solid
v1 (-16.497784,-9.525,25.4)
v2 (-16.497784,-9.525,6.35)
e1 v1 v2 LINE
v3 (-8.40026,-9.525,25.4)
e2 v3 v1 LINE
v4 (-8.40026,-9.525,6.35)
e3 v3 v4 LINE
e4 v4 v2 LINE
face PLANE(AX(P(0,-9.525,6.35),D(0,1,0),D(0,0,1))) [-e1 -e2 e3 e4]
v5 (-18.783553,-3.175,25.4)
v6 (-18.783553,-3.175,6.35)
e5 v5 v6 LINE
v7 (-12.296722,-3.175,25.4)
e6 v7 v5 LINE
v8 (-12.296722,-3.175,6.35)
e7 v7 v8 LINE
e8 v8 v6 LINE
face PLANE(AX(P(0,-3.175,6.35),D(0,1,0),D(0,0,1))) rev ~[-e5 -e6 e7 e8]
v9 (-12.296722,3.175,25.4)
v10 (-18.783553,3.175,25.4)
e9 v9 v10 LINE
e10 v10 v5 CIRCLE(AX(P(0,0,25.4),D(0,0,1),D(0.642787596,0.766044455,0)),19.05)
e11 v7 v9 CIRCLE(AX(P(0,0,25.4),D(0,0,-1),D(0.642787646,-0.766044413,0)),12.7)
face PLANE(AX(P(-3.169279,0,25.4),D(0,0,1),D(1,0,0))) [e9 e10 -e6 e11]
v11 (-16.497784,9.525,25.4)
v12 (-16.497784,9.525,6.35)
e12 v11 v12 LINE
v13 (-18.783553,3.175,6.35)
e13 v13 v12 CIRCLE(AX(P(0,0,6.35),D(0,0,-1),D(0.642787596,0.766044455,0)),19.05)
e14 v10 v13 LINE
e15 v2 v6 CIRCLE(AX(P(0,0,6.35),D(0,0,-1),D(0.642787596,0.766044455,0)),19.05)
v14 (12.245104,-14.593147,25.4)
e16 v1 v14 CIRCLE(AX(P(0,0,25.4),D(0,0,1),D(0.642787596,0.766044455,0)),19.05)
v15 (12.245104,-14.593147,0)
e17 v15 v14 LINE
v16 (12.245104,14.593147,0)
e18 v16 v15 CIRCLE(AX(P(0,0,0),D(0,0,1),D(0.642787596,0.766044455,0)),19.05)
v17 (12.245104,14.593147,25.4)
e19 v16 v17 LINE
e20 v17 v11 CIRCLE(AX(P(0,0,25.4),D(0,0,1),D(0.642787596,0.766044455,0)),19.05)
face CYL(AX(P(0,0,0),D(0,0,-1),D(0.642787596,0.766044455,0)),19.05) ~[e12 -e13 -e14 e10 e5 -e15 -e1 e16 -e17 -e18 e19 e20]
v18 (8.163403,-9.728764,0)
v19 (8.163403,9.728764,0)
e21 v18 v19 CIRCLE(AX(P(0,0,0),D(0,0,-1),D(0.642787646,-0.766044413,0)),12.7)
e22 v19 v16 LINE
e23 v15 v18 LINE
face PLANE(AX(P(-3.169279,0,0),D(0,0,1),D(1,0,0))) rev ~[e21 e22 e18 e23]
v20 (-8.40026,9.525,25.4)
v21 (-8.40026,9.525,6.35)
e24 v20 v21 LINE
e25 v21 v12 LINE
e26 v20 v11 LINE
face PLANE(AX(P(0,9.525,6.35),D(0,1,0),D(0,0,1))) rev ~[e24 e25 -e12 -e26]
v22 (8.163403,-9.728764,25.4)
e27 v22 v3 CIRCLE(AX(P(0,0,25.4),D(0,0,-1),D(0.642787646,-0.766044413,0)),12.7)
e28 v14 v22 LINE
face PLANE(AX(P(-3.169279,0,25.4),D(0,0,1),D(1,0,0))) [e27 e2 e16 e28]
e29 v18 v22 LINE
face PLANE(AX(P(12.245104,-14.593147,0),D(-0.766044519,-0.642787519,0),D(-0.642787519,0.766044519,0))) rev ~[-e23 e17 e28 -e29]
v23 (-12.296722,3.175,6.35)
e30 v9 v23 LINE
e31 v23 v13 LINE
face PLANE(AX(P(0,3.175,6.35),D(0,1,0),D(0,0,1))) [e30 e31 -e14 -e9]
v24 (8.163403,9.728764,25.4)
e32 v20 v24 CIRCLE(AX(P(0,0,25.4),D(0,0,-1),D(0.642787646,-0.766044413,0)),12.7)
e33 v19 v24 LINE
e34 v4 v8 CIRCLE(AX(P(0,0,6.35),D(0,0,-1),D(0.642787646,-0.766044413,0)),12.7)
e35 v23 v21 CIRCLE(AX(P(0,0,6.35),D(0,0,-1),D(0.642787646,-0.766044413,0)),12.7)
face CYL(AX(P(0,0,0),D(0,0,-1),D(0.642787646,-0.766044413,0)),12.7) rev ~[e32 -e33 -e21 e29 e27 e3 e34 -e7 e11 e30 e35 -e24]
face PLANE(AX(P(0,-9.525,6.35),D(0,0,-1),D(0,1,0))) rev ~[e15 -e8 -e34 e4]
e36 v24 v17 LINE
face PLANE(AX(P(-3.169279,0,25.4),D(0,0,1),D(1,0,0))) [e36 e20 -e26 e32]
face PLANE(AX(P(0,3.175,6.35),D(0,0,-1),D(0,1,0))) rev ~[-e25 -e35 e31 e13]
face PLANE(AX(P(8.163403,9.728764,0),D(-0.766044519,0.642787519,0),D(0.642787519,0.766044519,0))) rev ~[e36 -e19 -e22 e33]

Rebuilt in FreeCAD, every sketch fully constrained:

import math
import FreeCAD as App
import Part
import Sketcher
from FreeCAD import Vector
Q = App.Units.Quantity


def add_polygon(sketch, points):
    """Adds a closed chain of lines whose ends are joined by coincident constraints."""
    first, n = sketch.GeometryCount, len(points)
    for a, b in zip(points, points[1:] + points[:1]):
        sketch.addGeometry(Part.LineSegment(App.Vector(*a, 0), App.Vector(*b, 0)), False)
    for i in range(n):
        sketch.addConstraint(Sketcher.Constraint("Coincident", first + i, 2, first + (i + 1) % n, 1))

doc = App.newDocument("Part")
body = doc.addObject("PartDesign::Body", "Body")

sketch1 = body.newObject("Sketcher::SketchObject", "Sketch")
sketch1.AttachmentSupport = (doc.getObject("XY_Plane"), [""])
sketch1.MapMode = "FlatFace"
sketch1.addGeometry(Part.LineSegment(Vector(8, 10, 0), Vector(12, 15, 0)), False)
sketch1.addGeometry(Part.ArcOfCircle(Part.Circle(Vector(0, 0, 0), Vector(0, 0, 1), 19), math.radians(50), math.radians(310)), False)
sketch1.addGeometry(Part.LineSegment(Vector(12, -15, 0), Vector(8, -10, 0)), False)
sketch1.addGeometry(Part.ArcOfCircle(Part.Circle(Vector(0, 0, 0), Vector(0, 0, 1), 13), math.radians(50), math.radians(310)), False)
sketch1.addConstraint(Sketcher.Constraint("Coincident", 0, 2, 1, 1))
sketch1.addConstraint(Sketcher.Constraint("Coincident", 1, 2, 2, 1))
sketch1.addConstraint(Sketcher.Constraint("Coincident", 2, 2, 3, 2))
sketch1.addConstraint(Sketcher.Constraint("Coincident", 3, 1, 0, 1))
sketch1.addConstraint(Sketcher.Constraint("Coincident", 1, 3, -1, 1))
sketch1.addConstraint(Sketcher.Constraint("Coincident", 3, 3, -1, 1))
sketch1.addConstraint(Sketcher.Constraint("Vertical", 0, 2, 1, 2))
sketch1.addConstraint(Sketcher.Constraint("Vertical", 2, 2, 3, 1))
sketch1.addConstraint(Sketcher.Constraint("Radius", 3, Q("0.5 in")))
sketch1.addConstraint(Sketcher.Constraint("Radius", 1, Q("0.75 in")))
sketch1.addConstraint(Sketcher.Constraint("Angle", 0, Q("50.000007 deg")))
sketch1.addConstraint(Sketcher.Constraint("DistanceY", 2, 2, 0, 2, Q("24.321911 mm")))
pad1 = body.newObject("PartDesign::Pad", "Pad")
pad1.Profile = sketch1
pad1.Length = Q("1 in")

sketch2 = body.newObject("Sketcher::SketchObject", "Sketch001")
sketch2.AttachmentSupport = (doc.getObject("YZ_Plane"), [""])
sketch2.MapMode = "FlatFace"
add_polygon(sketch2, [(3, 25), (3, 6), (10, 6), (10, 25)])
add_polygon(sketch2, [(-10, 25), (-10, 6), (-3, 6), (-3, 25)])
sketch2.addConstraint(Sketcher.Constraint("Vertical", 0))
sketch2.addConstraint(Sketcher.Constraint("Horizontal", 1))
sketch2.addConstraint(Sketcher.Constraint("Vertical", 2))
sketch2.addConstraint(Sketcher.Constraint("Horizontal", 3))
sketch2.addConstraint(Sketcher.Constraint("Vertical", 4))
sketch2.addConstraint(Sketcher.Constraint("Horizontal", 5))
sketch2.addConstraint(Sketcher.Constraint("Vertical", 6))
sketch2.addConstraint(Sketcher.Constraint("Horizontal", 7))
sketch2.addConstraint(Sketcher.Constraint("Symmetric", 1, 2, 4, 2, -2))
sketch2.addConstraint(Sketcher.Constraint("Symmetric", 3, 2, 6, 2, -2))
sketch2.addConstraint(Sketcher.Constraint("DistanceY", -1, 1, 2, 2, Q("1 in")))
sketch2.addConstraint(Sketcher.Constraint("DistanceX", 1, 1, 1, 2, Q("0.25 in")))
sketch2.addConstraint(Sketcher.Constraint("DistanceY", 0, 2, 0, 1, Q("0.75 in")))
sketch2.addConstraint(Sketcher.Constraint("DistanceX", 4, 2, 0, 2, Q("0.5 in")))
pocket1 = body.newObject("PartDesign::Pocket", "Pocket")
pocket1.Profile = sketch2
pocket1.Length = Q("1 in")

doc.recompute()
